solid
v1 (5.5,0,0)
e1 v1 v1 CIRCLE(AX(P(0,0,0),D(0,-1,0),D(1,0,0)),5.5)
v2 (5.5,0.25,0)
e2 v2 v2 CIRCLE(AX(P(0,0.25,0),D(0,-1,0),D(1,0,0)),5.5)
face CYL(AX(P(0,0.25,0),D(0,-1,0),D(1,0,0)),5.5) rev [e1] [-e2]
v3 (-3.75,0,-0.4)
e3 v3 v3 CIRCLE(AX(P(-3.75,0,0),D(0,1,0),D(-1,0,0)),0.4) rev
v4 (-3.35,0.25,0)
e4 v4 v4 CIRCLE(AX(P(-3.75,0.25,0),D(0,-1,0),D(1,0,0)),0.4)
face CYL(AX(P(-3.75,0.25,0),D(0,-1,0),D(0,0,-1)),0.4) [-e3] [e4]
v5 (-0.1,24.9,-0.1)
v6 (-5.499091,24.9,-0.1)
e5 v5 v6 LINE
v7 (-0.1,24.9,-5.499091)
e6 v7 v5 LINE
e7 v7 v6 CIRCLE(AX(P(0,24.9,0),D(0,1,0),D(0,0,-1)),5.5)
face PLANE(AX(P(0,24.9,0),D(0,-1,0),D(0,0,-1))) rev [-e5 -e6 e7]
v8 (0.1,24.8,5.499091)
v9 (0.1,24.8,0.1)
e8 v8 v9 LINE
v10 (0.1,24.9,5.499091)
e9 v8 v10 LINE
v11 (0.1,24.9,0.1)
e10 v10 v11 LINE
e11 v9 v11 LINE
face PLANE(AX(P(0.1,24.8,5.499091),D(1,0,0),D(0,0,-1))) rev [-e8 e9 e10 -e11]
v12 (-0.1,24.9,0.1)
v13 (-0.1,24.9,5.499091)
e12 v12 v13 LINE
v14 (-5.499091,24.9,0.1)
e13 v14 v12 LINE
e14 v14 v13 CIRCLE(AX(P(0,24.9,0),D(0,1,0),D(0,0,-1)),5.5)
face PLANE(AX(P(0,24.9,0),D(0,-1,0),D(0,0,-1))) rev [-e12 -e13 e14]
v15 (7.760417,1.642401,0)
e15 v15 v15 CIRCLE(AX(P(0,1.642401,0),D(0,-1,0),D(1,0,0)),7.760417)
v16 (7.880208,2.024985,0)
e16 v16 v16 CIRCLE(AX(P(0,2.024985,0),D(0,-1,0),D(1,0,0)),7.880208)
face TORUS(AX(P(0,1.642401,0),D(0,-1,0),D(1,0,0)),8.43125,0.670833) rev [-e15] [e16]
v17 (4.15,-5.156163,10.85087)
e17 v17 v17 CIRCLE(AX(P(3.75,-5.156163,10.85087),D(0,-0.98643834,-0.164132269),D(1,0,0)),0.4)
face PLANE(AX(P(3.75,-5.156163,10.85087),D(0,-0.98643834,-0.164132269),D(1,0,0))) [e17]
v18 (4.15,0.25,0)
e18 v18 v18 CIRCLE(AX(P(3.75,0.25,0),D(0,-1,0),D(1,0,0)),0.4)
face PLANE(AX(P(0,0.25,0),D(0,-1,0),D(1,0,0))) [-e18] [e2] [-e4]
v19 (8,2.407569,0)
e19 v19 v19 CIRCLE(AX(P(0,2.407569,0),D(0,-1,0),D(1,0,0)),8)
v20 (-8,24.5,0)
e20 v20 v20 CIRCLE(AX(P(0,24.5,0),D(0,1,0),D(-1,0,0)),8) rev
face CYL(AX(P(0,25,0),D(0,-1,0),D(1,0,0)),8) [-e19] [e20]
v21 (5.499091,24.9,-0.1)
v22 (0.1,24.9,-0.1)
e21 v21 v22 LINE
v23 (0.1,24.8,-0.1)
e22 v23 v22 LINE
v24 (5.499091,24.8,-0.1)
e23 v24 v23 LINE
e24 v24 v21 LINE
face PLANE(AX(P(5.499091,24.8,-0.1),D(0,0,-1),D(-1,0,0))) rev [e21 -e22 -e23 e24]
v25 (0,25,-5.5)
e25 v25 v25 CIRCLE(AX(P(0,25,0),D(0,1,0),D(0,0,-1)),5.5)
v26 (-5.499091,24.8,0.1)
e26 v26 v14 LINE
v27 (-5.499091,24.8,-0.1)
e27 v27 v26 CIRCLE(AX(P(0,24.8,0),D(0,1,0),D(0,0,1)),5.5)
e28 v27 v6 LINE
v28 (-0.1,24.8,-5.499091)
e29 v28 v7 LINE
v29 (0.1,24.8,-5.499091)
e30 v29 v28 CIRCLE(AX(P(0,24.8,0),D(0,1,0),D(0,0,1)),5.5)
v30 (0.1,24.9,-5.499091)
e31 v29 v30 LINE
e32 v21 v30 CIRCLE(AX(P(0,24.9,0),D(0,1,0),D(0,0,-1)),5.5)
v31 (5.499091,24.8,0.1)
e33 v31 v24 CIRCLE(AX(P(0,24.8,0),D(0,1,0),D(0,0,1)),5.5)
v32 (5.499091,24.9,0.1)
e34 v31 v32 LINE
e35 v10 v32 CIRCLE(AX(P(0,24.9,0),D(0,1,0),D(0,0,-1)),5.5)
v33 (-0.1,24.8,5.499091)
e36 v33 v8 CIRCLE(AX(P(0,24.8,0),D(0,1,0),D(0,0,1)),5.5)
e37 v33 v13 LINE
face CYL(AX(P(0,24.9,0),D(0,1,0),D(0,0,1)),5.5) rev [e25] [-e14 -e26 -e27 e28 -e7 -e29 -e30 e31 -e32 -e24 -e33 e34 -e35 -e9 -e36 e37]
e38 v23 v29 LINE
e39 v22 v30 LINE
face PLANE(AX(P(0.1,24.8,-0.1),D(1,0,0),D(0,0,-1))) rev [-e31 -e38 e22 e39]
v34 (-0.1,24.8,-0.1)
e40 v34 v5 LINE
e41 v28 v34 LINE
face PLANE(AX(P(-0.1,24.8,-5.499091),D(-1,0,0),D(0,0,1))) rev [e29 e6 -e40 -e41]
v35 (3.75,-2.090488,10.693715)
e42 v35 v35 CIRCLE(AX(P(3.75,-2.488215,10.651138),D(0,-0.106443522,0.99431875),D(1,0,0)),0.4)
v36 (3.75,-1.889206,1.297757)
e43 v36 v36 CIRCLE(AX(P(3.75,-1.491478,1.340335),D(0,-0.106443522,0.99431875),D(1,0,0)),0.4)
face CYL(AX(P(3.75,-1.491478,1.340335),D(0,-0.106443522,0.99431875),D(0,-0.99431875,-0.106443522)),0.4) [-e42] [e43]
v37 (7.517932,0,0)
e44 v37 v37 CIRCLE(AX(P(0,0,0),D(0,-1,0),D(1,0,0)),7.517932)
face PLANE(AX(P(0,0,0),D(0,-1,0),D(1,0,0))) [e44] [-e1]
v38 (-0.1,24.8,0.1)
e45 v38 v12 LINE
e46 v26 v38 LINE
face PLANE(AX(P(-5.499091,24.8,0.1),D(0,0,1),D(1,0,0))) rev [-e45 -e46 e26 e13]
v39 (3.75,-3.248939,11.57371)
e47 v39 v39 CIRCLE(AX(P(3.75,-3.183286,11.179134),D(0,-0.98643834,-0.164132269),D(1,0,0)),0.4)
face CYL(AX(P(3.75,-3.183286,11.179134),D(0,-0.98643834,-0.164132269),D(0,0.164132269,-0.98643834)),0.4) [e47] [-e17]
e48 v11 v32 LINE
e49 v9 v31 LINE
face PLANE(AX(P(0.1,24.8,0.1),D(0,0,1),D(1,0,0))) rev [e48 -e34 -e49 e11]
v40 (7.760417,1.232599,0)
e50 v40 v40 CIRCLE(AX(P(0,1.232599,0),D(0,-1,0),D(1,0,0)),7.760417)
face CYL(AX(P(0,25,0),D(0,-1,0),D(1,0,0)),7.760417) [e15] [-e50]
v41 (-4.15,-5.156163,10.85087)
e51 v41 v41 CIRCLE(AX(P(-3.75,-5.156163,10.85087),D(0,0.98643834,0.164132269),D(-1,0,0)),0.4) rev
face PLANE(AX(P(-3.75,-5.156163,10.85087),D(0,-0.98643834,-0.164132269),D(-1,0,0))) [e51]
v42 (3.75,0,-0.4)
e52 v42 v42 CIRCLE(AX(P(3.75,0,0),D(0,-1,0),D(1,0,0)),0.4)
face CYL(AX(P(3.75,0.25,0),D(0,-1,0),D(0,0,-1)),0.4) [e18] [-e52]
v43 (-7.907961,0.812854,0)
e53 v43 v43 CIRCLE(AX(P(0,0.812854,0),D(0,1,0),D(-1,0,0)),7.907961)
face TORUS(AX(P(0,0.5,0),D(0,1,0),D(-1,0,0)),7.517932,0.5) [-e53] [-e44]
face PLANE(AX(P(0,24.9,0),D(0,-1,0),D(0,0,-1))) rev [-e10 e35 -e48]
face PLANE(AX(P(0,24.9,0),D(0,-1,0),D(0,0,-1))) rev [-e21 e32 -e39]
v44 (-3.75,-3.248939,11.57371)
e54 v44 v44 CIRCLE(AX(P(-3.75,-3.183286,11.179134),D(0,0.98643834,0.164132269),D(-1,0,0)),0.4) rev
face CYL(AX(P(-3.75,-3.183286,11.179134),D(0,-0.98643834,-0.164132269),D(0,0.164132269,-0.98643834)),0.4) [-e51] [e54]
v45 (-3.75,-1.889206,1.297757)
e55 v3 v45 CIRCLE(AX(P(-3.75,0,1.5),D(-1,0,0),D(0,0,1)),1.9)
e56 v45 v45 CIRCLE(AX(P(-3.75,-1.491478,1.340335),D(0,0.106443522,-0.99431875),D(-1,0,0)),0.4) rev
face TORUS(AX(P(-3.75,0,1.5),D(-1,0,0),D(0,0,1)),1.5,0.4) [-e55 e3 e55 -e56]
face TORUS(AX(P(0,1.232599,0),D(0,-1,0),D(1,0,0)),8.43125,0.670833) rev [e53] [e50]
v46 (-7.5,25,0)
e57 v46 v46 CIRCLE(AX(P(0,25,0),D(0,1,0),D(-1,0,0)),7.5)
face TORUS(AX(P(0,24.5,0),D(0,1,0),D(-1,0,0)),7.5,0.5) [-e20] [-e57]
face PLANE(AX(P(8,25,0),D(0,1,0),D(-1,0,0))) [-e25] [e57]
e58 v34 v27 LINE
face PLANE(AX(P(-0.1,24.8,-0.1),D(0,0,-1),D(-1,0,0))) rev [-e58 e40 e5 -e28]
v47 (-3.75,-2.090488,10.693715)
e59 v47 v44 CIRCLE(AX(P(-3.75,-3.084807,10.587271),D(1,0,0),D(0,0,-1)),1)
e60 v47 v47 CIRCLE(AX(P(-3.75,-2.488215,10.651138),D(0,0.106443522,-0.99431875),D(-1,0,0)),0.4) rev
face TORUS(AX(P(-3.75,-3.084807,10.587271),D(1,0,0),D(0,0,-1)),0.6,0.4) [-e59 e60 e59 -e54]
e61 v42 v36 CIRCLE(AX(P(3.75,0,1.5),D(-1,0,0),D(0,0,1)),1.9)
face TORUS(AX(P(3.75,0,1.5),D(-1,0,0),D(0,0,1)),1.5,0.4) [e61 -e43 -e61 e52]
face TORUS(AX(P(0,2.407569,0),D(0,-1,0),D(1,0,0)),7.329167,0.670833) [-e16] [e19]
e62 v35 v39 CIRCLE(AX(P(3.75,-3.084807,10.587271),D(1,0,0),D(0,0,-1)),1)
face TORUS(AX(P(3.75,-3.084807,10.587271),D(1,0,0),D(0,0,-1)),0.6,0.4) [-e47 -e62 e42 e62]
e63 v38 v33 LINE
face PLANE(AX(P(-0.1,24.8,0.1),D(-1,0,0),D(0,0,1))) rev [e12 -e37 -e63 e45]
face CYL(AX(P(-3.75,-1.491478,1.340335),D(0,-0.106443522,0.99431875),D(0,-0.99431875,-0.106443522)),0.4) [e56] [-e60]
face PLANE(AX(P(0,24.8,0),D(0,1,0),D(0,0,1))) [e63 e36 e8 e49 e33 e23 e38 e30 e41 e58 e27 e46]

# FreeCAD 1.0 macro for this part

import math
import FreeCAD as App
import Part
import Sketcher
from FreeCAD import Vector


def edges_at(feature, points):
    """Names of the edges that pass closest to the given points."""
    edges = feature.Shape.Edges
    near = lambda p: min(range(len(edges)), key=lambda i: edges[i].distToShape(Part.Vertex(*p))[0])
    return sorted({f"Edge{near(p) + 1}" for p in points})

doc = App.newDocument("Part")
body = doc.addObject("PartDesign::Body", "Body")

sketch1 = body.newObject("Sketcher::SketchObject", "Sketch")
sketch1.AttachmentSupport = (doc.getObject("XY_Plane"), [""])
sketch1.MapMode = "FlatFace"
sketch1.addGeometry([
    Part.LineSegment(Vector(8, 25, 0), Vector(0, 25, 0)),
    Part.LineSegment(Vector(0, 25, 0), Vector(0, 0, 0)),
    Part.LineSegment(Vector(0, 0, 0), Vector(8, 0, 0)),
    Part.ArcOfCircle(Part.Circle(Vector(7.42, 0.35, 0), Vector(0, 0, 1), 0.67), math.radians(-31), math.radians(41)),
    Part.ArcOfCircle(Part.Circle(Vector(8.43, 1.23, 0), Vector(0, 0, 1), 0.67), math.radians(180), math.radians(221)),
    Part.LineSegment(Vector(7.76, 1.23, 0), Vector(7.76, 1.64, 0)),
    Part.ArcOfCircle(Part.Circle(Vector(8.43, 1.64, 0), Vector(0, 0, 1), 0.67), math.radians(145), math.radians(180)),
    Part.ArcOfCircle(Part.Circle(Vector(7.33, 2.41, 0), Vector(0, 0, 1), 0.67), math.radians(-35), math.radians(0)),
    Part.LineSegment(Vector(8, 2.41, 0), Vector(8, 25, 0)),
], False)
sketch1.addConstraint([
    Sketcher.Constraint("Coincident", 0, 2, 1, 1),
    Sketcher.Constraint("Coincident", 1, 2, 2, 1),
    Sketcher.Constraint("Coincident", 2, 2, 3, 1),
    Sketcher.Constraint("Tangent", 3, 2, 4, 2),
    Sketcher.Constraint("Tangent", 4, 1, 5, 1),
    Sketcher.Constraint("Tangent", 5, 2, 6, 2),
    Sketcher.Constraint("Tangent", 6, 1, 7, 1),
    Sketcher.Constraint("Tangent", 7, 2, 8, 1),
    Sketcher.Constraint("Coincident", 8, 2, 0, 1),
    Sketcher.Constraint("Horizontal", 0),
    Sketcher.Constraint("Vertical", 1),
    Sketcher.Constraint("Horizontal", 2),
    Sketcher.Constraint("Vertical", 5),
    Sketcher.Constraint("Vertical", 8),
    Sketcher.Constraint("Coincident", 1, 2, -1, 1),
    Sketcher.Constraint("Equal", 3, 4),
    Sketcher.Constraint("Equal", 4, 6),
    Sketcher.Constraint("Equal", 6, 7),
    Sketcher.Constraint("Vertical", 2, 2, 7, 2),
    Sketcher.Constraint("DistanceX", 0, 2, 0, 1, 8.0),
    Sketcher.Constraint("DistanceY", 1, 2, 1, 1, 25.0),
    Sketcher.Constraint("DistanceY", 5, 1, 5, 2, 0.409802),
    Sketcher.Constraint("Radius", 3, 0.670833),
    Sketcher.Constraint("DistanceY", 8, 1, 8, 2, 22.592431),
    Sketcher.Constraint("DistanceY", -1, 1, 4, 3, 1.232599),
])
revolution = body.newObject("PartDesign::Revolution", "Revolution")
revolution.Profile = sketch1
revolution.ReferenceAxis = (sketch1, ["V_Axis"])
revolution.Angle = 360

sketch2 = body.newObject("Sketcher::SketchObject", "Sketch001")
sketch2.AttachmentSupport = (doc.getObject("XZ_Plane"), [""])
sketch2.MapMode = "FlatFace"
sketch2.AttachmentOffset = App.Placement(Vector(0, 0, -25), App.Rotation())
sketch2.addGeometry(Part.Circle(Vector(0, 0, 0), Vector(0, 0, 1), 6), False)
sketch2.addConstraint([
    Sketcher.Constraint("Coincident", 0, 3, -1, 1),
    Sketcher.Constraint("Diameter", 0, 11.0),
])
pocket1 = body.newObject("PartDesign::Pocket", "Pocket")
pocket1.Profile = sketch2
pocket1.Length = 0.1
pocket1.Reversed = True

sketch3 = body.newObject("Sketcher::SketchObject", "Sketch002")
sketch3.AttachmentSupport = (doc.getObject("XZ_Plane"), [""])
sketch3.MapMode = "FlatFace"
sketch3.AttachmentOffset = App.Placement(Vector(0, 0, -24.9), App.Rotation())
sketch3.addGeometry([
    Part.LineSegment(Vector(5.5, -0.1, 0), Vector(0.1, -0.1, 0)),
    Part.LineSegment(Vector(0.1, -0.1, 0), Vector(0.1, -5.5, 0)),
    Part.ArcOfCircle(Part.Circle(Vector(0, 0, 0), Vector(0, 0, 1), 5.5), math.radians(-90), math.radians(-88.96)),
    Part.ArcOfCircle(Part.Circle(Vector(0, 0, 0), Vector(0, 0, 1), 5.5), math.radians(-91.04), math.radians(-90)),
    Part.LineSegment(Vector(-0.1, -5.5, 0), Vector(-0.1, -0.1, 0)),
    Part.LineSegment(Vector(-0.1, -0.1, 0), Vector(-5.5, -0.1, 0)),
    Part.ArcOfCircle(Part.Circle(Vector(0, 0, 0), Vector(0, 0, 1), 5.5), math.radians(180), math.radians(181.04)),
    Part.ArcOfCircle(Part.Circle(Vector(0, 0, 0), Vector(0, 0, 1), 5.5), math.radians(178.96), math.radians(180)),
    Part.LineSegment(Vector(-5.5, 0.1, 0), Vector(-0.1, 0.1, 0)),
    Part.LineSegment(Vector(-0.1, 0.1, 0), Vector(-0.1, 5.5, 0)),
    Part.ArcOfCircle(Part.Circle(Vector(0, 0, 0), Vector(0, 0, 1), 5.5), math.radians(90), math.radians(91.04)),
    Part.ArcOfCircle(Part.Circle(Vector(0, 0, 0), Vector(0, 0, 1), 5.5), math.radians(88.96), math.radians(90)),
    Part.LineSegment(Vector(0.1, 5.5, 0), Vector(0.1, 0.1, 0)),
    Part.LineSegment(Vector(0.1, 0.1, 0), Vector(5.5, 0.1, 0)),
    Part.ArcOfCircle(Part.Circle(Vector(0, 0, 0), Vector(0, 0, 1), 5.5), math.radians(0), math.radians(1.04)),
    Part.ArcOfCircle(Part.Circle(Vector(0, 0, 0), Vector(0, 0, 1), 5.5), math.radians(-1.04), math.radians(0)),
], False)
sketch3.addConstraint([
    Sketcher.Constraint("Coincident", 0, 2, 1, 1),
    Sketcher.Constraint("Coincident", 1, 2, 2, 2),
    Sketcher.Constraint("Tangent", 2, 1, 3, 2),
    Sketcher.Constraint("Coincident", 3, 1, 4, 1),
    Sketcher.Constraint("Coincident", 4, 2, 5, 1),
    Sketcher.Constraint("Coincident", 5, 2, 6, 2),
    Sketcher.Constraint("Tangent", 6, 1, 7, 2),
    Sketcher.Constraint("Coincident", 7, 1, 8, 1),
    Sketcher.Constraint("Coincident", 8, 2, 9, 1),
    Sketcher.Constraint("Coincident", 9, 2, 10, 2),
    Sketcher.Constraint("Tangent", 10, 1, 11, 2),
    Sketcher.Constraint("Coincident", 11, 1, 12, 1),
    Sketcher.Constraint("Coincident", 12, 2, 13, 1),
    Sketcher.Constraint("Coincident", 13, 2, 14, 2),
    Sketcher.Constraint("Tangent", 14, 1, 15, 2),
    Sketcher.Constraint("Coincident", 15, 1, 0, 1),
    Sketcher.Constraint("Horizontal", 0),
    Sketcher.Constraint("Vertical", 1),
    Sketcher.Constraint("Vertical", 4),
    Sketcher.Constraint("Horizontal", 5),
    Sketcher.Constraint("Horizontal", 8),
    Sketcher.Constraint("Vertical", 9),
    Sketcher.Constraint("Vertical", 12),
    Sketcher.Constraint("Horizontal", 13),
    Sketcher.Constraint("Coincident", 2, 3, -1, 1),
    Sketcher.Constraint("Coincident", 6, 3, -1, 1),
    Sketcher.Constraint("Coincident", 10, 3, -1, 1),
    Sketcher.Constraint("Coincident", 14, 3, -1, 1),
    Sketcher.Constraint("Equal", 2, 3),
    Sketcher.Constraint("Equal", 3, 6),
    Sketcher.Constraint("Equal", 6, 7),
    Sketcher.Constraint("Equal", 7, 10),
    Sketcher.Constraint("Equal", 10, 11),
    Sketcher.Constraint("Equal", 11, 14),
    Sketcher.Constraint("Equal", 14, 15),
    Sketcher.Constraint("Symmetric", 0, 2, 8, 2, -1, 1),
    Sketcher.Constraint("Symmetric", 4, 2, 12, 2, -1, 1),
    Sketcher.Constraint("Symmetric", 0, 2, 4, 2, -2),
    Sketcher.Constraint("PointOnObject", 2, 1, -2),
    Sketcher.Constraint("PointOnObject", 6, 1, -1),
    Sketcher.Constraint("PointOnObject", 10, 1, -2),
    Sketcher.Constraint("PointOnObject", 14, 1, -1),
    Sketcher.Constraint("Equal", 13, 1),
    Sketcher.Constraint("DistanceX", -1, 1, 0, 2, 0.1),
    Sketcher.Constraint("DistanceY", 2, 1, -1, 1, 5.5),
])
pocket2 = body.newObject("PartDesign::Pocket", "Pocket001")
pocket2.Profile = sketch3
pocket2.Length = 0.1
pocket2.Reversed = True

sketch4 = body.newObject("Sketcher::SketchObject", "Sketch003")
sketch4.AttachmentSupport = (doc.getObject("XZ_Plane"), [""])
sketch4.MapMode = "FlatFace"
sketch4.AttachmentOffset = App.Placement(Vector(0, 0, -0.25), App.Rotation())
sketch4.addGeometry(Part.Circle(Vector(0, 0, 0), Vector(0, 0, 1), 6), False)
sketch4.addConstraint([
    Sketcher.Constraint("Coincident", 0, 3, -1, 1),
    Sketcher.Constraint("Diameter", 0, 11.0),
])
pocket3 = body.newObject("PartDesign::Pocket", "Pocket002")
pocket3.Profile = sketch4
pocket3.Length = 0.25
pocket3.Reversed = True
doc.recompute()

fillet = body.newObject("PartDesign::Fillet", "Fillet")
fillet.Base = (pocket3, edges_at(pocket3, [(-8, 25, 0), (-8, 0, 0)]))
fillet.Radius = 0.5

sketch5 = body.newObject("Sketcher::SketchObject", "Sketch004")
sketch5.AttachmentSupport = (doc.getObject("XZ_Plane"), [""])
sketch5.MapMode = "FlatFace"
sketch5.AttachmentOffset = App.Placement(Vector(0, 0, -0.25), App.Rotation())
sketch5.addGeometry(Part.Circle(Vector(3.75, 0, 0), Vector(0, 0, 1), 0.4), False)
sketch5.addConstraint([
    Sketcher.Constraint("PointOnObject", 0, 3, -1),
    Sketcher.Constraint("Diameter", 0, 0.8),
    Sketcher.Constraint("DistanceX", -1, 1, 0, 3, 3.75),
])

sketch6 = body.newObject("Sketcher::SketchObject", "Sketch005")
sketch6.AttachmentSupport = (doc.getObject("YZ_Plane"), [""])
sketch6.MapMode = "FlatFace"
sketch6.AttachmentOffset = App.Placement(Vector(0, 0, 3.75), App.Rotation())
sketch6.addGeometry([
    Part.LineSegment(Vector(0.25, 0, 0), Vector(0, 0, 0)),
    Part.ArcOfCircle(Part.Circle(Vector(0, 1.5, 0), Vector(0, 0, 1), 1.5), math.radians(-174), math.radians(-90)),
    Part.LineSegment(Vector(-1.49, 1.34, 0), Vector(-2.49, 10.65, 0)),
    Part.ArcOfCircle(Part.Circle(Vector(-3.08, 10.59, 0), Vector(0, 0, 1), 0.6), math.radians(6), math.radians(99)),
    Part.LineSegment(Vector(-3.18, 11.18, 0), Vector(-5.16, 10.85, 0)),
], False)
sketch6.addConstraint([
    Sketcher.Constraint("Tangent", 0, 2, 1, 2),
    Sketcher.Constraint("Tangent", 1, 1, 2, 1),
    Sketcher.Constraint("Tangent", 2, 2, 3, 1),
    Sketcher.Constraint("Tangent", 3, 2, 4, 1),
    Sketcher.Constraint("Horizontal", 0),
    Sketcher.Constraint("Coincident", 0, 2, -1, 1),
    Sketcher.Constraint("Radius", 1, 1.5),
    Sketcher.Constraint("Radius", 3, 0.6),
    Sketcher.Constraint("Distance", 4, 2.0),
    Sketcher.Constraint("DistanceX", 0, 2, 0, 1, 0.25),
    Sketcher.Constraint("DistanceY", 1, 1, 3, 2, 9.8388),
    Sketcher.Constraint("DistanceY", 3, 3, 4, 2, 0.263598),
    Sketcher.Constraint("DistanceY", -1, 1, 3, 3, 10.587271),
])
doc.recompute()

additivepipe = body.newObject("PartDesign::AdditivePipe", "AdditivePipe")
additivepipe.Profile = sketch5
additivepipe.Spine = (sketch6, ["Edge1", "Edge2", "Edge3", "Edge4", "Edge5"])
doc.recompute()

mirrored = body.newObject("PartDesign::Mirrored", "Mirrored")
mirrored.Originals = [additivepipe]
mirrored.MirrorPlane = (doc.getObject("YZ_Plane"), [""])
body.Tip = mirrored

doc.recompute()
